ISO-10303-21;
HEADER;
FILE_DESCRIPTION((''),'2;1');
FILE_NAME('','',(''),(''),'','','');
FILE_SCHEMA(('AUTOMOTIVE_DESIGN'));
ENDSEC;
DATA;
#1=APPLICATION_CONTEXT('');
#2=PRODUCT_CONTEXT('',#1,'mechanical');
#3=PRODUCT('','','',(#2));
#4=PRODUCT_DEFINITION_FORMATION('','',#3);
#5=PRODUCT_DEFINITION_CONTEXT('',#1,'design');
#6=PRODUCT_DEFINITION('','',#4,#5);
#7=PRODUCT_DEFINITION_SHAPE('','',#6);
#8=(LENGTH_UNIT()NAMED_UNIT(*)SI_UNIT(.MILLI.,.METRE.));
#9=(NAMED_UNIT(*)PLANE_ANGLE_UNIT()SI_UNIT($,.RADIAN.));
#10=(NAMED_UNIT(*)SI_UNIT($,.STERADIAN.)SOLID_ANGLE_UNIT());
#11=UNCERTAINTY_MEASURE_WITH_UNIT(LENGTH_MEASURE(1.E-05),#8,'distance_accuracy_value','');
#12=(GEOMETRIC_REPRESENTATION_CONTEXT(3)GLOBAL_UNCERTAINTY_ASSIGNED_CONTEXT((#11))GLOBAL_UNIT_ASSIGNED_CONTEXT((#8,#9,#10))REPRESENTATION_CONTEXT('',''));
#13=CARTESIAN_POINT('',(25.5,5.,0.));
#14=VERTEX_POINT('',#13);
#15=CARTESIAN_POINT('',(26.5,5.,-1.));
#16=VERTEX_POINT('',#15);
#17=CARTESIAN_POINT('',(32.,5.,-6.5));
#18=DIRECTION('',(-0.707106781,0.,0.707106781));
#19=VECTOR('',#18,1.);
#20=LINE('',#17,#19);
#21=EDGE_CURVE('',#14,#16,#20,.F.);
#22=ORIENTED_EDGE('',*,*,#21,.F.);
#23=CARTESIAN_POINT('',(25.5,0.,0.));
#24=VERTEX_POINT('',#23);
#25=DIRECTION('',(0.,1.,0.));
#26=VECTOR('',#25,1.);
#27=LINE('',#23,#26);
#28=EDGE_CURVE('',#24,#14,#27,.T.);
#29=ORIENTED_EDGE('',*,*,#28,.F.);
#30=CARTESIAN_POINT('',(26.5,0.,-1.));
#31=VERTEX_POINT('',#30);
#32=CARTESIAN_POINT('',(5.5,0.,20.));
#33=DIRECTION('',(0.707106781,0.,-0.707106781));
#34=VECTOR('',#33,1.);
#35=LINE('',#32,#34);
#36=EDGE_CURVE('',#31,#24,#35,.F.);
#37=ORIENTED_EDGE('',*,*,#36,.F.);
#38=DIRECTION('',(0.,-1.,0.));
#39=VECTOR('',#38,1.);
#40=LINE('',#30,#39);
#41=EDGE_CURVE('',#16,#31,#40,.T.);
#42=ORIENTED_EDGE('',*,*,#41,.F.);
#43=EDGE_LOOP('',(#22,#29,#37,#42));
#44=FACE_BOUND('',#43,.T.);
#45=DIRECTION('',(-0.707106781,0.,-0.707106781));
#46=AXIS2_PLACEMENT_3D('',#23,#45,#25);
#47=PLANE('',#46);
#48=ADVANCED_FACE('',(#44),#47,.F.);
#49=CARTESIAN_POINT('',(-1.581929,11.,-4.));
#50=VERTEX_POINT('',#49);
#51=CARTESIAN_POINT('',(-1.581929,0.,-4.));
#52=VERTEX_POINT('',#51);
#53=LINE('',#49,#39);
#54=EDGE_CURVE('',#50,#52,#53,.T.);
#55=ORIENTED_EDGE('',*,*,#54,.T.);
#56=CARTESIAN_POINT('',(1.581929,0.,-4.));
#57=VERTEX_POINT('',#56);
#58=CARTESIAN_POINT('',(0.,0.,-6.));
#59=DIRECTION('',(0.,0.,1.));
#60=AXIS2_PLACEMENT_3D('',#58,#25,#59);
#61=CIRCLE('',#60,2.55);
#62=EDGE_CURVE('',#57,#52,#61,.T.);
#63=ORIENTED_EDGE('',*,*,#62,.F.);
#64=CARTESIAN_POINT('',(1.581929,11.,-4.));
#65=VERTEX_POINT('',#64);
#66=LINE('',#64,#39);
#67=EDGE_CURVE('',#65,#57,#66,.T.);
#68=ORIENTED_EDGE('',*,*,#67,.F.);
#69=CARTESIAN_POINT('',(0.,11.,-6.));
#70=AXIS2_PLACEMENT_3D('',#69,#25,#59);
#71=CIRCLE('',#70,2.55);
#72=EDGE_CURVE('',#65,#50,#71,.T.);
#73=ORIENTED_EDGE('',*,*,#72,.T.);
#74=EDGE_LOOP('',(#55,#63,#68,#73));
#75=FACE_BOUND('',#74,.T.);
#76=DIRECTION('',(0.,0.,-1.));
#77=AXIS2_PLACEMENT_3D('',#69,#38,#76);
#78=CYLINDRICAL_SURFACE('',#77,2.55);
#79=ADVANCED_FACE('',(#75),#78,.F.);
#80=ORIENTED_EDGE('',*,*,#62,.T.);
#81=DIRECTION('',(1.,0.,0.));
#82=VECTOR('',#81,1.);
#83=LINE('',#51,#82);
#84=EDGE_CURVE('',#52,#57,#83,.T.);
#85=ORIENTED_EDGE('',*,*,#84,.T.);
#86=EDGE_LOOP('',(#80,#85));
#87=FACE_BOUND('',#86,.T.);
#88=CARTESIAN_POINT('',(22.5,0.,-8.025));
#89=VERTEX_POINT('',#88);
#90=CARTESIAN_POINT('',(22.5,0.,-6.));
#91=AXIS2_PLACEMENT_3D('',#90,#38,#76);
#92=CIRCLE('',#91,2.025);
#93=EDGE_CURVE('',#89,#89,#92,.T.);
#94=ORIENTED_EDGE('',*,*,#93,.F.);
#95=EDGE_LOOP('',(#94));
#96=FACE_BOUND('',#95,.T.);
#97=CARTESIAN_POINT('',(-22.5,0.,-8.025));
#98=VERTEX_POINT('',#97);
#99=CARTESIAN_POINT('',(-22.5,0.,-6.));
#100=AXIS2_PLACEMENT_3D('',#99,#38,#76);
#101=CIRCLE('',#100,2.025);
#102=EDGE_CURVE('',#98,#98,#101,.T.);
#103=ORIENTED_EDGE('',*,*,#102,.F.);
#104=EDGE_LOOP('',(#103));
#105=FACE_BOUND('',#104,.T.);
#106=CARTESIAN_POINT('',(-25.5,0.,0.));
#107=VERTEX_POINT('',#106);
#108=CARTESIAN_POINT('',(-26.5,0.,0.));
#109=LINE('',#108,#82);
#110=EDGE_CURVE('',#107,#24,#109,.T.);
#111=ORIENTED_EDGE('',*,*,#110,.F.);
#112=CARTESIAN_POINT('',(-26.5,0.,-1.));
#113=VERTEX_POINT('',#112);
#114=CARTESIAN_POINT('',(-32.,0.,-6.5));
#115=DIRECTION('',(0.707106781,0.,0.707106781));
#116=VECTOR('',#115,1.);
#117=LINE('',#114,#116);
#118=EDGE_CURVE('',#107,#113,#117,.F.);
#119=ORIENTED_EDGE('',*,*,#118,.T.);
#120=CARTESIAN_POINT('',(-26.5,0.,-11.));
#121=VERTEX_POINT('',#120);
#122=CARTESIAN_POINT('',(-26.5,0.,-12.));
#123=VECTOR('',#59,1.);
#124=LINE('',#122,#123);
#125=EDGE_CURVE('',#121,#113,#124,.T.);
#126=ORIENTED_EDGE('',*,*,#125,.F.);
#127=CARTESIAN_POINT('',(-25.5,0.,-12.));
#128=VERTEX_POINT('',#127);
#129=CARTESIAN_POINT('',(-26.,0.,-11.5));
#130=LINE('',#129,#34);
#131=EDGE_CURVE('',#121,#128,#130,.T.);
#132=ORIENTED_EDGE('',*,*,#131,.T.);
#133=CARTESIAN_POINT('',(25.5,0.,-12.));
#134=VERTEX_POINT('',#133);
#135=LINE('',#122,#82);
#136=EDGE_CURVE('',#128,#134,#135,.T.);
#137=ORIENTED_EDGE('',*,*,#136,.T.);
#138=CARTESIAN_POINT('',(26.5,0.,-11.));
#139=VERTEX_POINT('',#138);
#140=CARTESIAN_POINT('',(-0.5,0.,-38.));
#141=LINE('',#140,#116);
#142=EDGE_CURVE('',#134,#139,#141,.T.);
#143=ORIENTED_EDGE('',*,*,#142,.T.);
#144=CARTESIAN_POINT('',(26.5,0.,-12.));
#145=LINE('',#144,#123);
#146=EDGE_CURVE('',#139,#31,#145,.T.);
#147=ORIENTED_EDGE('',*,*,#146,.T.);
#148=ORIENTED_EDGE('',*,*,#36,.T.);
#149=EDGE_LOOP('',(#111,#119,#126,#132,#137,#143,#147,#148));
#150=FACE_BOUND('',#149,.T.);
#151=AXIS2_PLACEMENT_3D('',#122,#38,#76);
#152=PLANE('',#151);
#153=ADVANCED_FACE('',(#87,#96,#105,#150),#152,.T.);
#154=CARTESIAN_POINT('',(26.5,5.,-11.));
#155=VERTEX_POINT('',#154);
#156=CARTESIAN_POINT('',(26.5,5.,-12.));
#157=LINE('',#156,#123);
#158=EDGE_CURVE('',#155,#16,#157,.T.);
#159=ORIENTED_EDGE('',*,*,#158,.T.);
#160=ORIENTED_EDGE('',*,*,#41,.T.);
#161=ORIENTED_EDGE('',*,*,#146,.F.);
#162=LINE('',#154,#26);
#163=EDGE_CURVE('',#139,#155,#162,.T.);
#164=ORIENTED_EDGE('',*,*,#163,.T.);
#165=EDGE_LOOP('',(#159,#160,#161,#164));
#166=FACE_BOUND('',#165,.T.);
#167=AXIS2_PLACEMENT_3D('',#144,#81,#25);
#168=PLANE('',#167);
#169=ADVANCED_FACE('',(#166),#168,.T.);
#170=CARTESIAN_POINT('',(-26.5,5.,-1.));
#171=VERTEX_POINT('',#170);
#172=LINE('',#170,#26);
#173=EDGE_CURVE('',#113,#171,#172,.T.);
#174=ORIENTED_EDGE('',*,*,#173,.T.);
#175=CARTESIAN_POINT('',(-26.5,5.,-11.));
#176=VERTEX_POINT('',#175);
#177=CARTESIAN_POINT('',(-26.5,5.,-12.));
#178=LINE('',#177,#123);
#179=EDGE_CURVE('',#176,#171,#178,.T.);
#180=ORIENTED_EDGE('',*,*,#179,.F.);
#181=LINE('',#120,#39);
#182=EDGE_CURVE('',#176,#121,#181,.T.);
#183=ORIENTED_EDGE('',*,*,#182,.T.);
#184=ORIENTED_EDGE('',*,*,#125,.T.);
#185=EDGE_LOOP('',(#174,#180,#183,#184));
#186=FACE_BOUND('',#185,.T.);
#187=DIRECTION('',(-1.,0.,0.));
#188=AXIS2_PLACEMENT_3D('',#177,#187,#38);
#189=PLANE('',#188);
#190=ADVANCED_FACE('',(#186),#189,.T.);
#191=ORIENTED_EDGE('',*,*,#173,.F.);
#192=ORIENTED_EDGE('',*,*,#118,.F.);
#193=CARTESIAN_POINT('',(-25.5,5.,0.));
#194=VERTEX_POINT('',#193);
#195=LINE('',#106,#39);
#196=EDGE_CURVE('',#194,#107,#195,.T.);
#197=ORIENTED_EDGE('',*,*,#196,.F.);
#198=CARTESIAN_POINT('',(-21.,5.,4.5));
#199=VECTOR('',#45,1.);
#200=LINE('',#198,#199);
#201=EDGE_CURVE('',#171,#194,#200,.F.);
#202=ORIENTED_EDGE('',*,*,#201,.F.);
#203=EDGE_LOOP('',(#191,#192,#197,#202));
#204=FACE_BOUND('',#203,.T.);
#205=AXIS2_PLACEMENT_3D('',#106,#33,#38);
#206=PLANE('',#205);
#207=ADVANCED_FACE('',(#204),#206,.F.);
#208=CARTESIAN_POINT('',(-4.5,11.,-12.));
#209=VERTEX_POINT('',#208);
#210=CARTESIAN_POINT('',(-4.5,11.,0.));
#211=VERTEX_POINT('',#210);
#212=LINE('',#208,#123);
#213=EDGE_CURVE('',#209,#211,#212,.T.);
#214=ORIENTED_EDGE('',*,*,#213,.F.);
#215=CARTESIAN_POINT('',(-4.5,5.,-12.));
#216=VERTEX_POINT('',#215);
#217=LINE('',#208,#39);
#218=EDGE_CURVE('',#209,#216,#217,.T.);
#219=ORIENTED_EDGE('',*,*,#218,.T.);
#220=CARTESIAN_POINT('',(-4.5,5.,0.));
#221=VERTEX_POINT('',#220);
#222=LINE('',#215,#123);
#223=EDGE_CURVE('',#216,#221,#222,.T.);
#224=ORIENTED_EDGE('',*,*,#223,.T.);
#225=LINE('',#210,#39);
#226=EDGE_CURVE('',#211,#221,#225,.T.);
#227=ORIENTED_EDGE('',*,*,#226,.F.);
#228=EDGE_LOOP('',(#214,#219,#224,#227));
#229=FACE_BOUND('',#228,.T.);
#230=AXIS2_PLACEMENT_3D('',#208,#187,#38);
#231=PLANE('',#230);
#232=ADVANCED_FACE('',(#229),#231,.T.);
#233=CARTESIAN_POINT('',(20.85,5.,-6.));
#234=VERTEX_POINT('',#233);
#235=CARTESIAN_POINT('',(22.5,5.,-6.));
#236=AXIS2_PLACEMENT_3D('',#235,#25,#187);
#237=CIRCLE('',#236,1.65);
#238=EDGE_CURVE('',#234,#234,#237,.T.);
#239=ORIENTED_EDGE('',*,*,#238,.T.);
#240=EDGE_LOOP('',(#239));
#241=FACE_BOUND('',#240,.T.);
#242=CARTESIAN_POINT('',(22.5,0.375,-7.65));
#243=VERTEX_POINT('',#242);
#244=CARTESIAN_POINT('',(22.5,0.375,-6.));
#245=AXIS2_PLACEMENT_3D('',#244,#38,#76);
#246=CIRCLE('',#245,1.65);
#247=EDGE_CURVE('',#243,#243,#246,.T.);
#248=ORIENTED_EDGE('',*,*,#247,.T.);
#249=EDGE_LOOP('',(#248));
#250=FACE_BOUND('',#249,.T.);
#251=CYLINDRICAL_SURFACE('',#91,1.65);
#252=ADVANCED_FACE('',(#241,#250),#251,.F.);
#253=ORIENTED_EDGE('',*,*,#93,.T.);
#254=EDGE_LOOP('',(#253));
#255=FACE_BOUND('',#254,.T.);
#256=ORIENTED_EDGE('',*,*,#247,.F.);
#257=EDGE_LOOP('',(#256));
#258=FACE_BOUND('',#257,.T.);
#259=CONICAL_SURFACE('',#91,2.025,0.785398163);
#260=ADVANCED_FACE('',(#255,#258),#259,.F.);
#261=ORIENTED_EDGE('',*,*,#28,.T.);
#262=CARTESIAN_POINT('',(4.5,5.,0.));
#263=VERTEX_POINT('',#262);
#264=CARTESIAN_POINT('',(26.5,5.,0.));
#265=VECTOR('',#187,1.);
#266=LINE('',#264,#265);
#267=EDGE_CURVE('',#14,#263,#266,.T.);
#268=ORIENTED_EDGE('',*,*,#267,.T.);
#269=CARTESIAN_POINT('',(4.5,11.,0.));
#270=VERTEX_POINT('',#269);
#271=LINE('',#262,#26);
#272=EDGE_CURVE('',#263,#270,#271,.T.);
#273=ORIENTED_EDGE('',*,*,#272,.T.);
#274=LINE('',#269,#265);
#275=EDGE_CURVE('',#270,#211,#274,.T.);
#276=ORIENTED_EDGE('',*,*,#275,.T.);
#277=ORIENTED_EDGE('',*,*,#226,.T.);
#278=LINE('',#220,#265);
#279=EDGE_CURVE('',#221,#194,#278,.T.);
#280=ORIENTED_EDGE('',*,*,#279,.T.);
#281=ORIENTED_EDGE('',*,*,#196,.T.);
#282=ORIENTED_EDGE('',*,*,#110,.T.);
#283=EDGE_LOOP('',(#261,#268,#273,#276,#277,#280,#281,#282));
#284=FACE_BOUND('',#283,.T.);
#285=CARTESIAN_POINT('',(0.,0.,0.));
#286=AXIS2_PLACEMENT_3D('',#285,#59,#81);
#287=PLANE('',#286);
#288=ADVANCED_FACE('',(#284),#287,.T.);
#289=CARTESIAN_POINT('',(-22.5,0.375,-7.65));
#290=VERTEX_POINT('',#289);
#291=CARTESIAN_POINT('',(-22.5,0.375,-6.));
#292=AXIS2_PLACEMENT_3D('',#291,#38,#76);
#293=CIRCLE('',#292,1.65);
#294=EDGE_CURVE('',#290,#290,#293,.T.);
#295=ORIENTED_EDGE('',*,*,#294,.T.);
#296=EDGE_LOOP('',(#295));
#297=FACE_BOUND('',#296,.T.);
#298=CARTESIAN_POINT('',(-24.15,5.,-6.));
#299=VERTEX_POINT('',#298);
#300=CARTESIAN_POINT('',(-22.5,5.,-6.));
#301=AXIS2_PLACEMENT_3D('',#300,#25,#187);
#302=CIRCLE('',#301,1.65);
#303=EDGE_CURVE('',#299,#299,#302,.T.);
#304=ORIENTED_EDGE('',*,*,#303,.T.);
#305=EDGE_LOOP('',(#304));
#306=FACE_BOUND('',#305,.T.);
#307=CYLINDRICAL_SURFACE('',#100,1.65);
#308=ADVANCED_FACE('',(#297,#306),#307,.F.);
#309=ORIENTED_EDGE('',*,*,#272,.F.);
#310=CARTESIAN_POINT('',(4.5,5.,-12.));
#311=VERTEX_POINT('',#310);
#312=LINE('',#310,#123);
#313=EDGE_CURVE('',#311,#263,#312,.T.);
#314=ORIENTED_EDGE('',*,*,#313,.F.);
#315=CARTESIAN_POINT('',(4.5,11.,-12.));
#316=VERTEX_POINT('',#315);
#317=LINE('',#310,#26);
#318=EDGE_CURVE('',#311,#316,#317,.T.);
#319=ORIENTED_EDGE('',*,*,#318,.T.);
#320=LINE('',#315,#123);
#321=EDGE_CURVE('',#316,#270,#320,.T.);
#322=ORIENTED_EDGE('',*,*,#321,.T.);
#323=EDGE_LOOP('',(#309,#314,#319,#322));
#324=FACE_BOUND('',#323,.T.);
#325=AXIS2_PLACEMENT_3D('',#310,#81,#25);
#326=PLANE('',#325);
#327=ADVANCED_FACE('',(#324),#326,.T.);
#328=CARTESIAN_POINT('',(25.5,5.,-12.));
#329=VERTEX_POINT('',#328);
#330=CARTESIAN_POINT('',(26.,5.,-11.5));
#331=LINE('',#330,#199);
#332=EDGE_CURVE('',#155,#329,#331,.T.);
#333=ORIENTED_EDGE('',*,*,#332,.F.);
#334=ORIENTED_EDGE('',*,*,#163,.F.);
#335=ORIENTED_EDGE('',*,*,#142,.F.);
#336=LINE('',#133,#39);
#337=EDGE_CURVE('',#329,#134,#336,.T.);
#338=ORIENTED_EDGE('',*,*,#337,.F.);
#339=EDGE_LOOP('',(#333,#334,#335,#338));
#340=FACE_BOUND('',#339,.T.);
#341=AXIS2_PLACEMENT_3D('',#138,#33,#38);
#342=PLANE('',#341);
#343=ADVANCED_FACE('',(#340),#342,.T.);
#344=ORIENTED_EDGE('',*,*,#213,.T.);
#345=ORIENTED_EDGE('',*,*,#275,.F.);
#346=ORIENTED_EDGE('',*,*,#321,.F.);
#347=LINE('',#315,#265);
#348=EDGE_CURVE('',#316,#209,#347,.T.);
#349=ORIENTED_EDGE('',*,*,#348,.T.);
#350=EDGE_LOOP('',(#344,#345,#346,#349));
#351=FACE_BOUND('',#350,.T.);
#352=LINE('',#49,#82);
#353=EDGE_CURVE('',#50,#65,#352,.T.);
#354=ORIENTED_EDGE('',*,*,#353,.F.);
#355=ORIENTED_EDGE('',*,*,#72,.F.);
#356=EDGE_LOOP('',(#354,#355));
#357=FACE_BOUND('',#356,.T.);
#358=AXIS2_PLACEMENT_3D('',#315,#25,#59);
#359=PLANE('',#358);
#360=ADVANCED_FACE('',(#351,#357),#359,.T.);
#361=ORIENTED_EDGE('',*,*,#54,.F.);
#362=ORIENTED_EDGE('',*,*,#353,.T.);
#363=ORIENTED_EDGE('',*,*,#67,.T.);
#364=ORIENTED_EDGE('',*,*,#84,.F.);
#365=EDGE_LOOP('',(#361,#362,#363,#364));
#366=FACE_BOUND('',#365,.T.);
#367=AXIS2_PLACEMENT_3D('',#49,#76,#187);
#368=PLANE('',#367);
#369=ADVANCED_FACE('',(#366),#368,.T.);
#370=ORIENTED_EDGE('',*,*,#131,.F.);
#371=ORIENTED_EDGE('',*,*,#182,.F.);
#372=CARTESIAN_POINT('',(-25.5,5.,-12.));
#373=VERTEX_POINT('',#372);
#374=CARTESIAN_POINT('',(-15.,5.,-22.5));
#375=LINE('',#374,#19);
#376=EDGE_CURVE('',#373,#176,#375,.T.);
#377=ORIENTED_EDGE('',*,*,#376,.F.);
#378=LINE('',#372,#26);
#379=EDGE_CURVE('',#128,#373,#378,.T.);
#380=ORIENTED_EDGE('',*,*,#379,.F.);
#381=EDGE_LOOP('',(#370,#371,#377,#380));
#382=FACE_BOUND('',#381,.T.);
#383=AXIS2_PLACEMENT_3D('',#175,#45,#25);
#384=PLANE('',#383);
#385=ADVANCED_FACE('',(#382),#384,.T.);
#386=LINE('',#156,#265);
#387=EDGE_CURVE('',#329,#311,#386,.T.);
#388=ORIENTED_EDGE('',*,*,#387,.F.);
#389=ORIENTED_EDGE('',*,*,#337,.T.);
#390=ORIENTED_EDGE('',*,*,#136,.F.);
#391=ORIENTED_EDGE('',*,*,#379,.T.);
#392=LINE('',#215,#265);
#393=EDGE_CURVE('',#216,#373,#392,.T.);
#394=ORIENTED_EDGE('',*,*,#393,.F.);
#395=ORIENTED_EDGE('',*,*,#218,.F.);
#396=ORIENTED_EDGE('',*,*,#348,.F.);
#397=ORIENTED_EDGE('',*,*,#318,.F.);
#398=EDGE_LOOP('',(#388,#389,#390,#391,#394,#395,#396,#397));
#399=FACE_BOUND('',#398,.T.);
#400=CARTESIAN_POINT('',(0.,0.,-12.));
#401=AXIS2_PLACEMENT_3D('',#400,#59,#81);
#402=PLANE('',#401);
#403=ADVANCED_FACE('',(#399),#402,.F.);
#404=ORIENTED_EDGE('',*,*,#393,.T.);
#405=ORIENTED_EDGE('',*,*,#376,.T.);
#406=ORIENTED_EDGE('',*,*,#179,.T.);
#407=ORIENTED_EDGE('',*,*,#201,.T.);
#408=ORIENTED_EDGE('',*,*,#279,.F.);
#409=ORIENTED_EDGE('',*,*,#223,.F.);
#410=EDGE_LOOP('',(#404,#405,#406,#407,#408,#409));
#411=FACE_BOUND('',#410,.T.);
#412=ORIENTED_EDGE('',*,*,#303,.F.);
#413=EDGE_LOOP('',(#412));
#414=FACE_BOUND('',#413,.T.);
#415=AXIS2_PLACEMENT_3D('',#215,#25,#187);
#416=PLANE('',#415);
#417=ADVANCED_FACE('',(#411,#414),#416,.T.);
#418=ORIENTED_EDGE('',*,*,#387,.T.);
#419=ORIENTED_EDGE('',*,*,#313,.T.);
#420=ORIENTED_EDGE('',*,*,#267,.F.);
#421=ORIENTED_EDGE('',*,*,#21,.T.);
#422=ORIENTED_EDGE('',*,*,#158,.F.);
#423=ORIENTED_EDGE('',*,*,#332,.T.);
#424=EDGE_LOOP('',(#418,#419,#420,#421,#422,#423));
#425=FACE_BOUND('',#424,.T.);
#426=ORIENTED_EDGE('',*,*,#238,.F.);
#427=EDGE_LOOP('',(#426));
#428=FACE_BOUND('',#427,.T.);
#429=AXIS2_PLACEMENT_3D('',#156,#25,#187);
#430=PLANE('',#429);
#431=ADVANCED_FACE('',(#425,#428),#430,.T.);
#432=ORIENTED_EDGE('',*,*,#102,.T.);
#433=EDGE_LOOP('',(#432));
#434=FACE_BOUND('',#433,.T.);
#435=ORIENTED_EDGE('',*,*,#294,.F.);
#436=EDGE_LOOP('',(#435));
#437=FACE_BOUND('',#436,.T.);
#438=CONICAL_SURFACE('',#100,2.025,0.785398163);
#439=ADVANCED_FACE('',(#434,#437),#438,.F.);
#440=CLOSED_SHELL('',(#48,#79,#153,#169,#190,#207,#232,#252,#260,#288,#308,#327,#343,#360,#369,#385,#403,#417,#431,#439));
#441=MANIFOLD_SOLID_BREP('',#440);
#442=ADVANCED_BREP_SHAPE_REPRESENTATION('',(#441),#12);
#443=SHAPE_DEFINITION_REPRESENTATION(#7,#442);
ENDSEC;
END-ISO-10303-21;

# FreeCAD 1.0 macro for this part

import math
import FreeCAD as App
import Part
import Sketcher
from FreeCAD import Vector
Q = App.Units.Quantity


def edges_at(feature, points):
    """Names of the edges that pass closest to the given points."""
    edges = feature.Shape.Edges
    near = lambda p: min(range(len(edges)), key=lambda i: edges[i].distToShape(Part.Vertex(*p))[0])
    return sorted({f"Edge{near(p) + 1}" for p in points})


def add_polygon(sketch, points):
    """Adds a closed chain of lines whose ends are joined by coincident constraints."""
    first, n = sketch.GeometryCount, len(points)
    for a, b in zip(points, points[1:] + points[:1]):
        sketch.addGeometry(Part.LineSegment(App.Vector(*a, 0), App.Vector(*b, 0)), False)
    for i in range(n):
        sketch.addConstraint(Sketcher.Constraint("Coincident", first + i, 2, first + (i + 1) % n, 1))

doc = App.newDocument("Part")
body = doc.addObject("PartDesign::Body", "Body")

# Sketch on XY plane
sketch1 = doc.addObject("Sketcher::SketchObject", "Sketch")
body.addObject(sketch1)
sketch1.AttachmentSupport = (doc.XY_Plane, [""])
sketch1.MapMode = "FlatFace"
add_polygon(sketch1, [(-26.5, 0), (26.5, 0), (26.5, 5), (4.5, 5), (4.5, 11), (-4.5, 11), (-4.5, 5), (-26.5, 5)])  # lines 0-7
sketch1.addConstraint(Sketcher.Constraint("Horizontal", 0))
sketch1.addConstraint(Sketcher.Constraint("Vertical", 1))
sketch1.addConstraint(Sketcher.Constraint("Horizontal", 2))
sketch1.addConstraint(Sketcher.Constraint("Vertical", 3))
sketch1.addConstraint(Sketcher.Constraint("Horizontal", 4))
sketch1.addConstraint(Sketcher.Constraint("Vertical", 5))
sketch1.addConstraint(Sketcher.Constraint("Horizontal", 6))
sketch1.addConstraint(Sketcher.Constraint("Vertical", 7))
sketch1.addConstraint(Sketcher.Constraint("Symmetric", 0, 2, 7, 2, -1, 1))
sketch1.addConstraint(Sketcher.Constraint("Symmetric", 2, 2, 5, 2, -2))
sketch1.addConstraint(Sketcher.Constraint("DistanceX", 0, 1, 0, 2, Q("53 mm")))
sketch1.addConstraint(Sketcher.Constraint("DistanceX", 2, 2, 2, 1, Q("22 mm")))
sketch1.addConstraint(Sketcher.Constraint("DistanceY", 1, 1, 1, 2, Q("5 mm")))
sketch1.addConstraint(Sketcher.Constraint("DistanceY", 3, 1, 3, 2, Q("6 mm")))
pad1 = doc.addObject("PartDesign::Pad", "Pad")
body.addObject(pad1)
pad1.Profile = sketch1
pad1.Length = 12
pad1.Reversed = True

# Sketch on XZ plane
sketch2 = doc.addObject("Sketcher::SketchObject", "Sketch001")
body.addObject(sketch2)
sketch2.AttachmentSupport = (doc.XZ_Plane, [""])
sketch2.MapMode = "FlatFace"
sketch2.addGeometry(Part.Circle(Vector(-22.5, -6, 0), Vector(0, 0, 1), 1.65), False)
sketch2.addGeometry(Part.Circle(Vector(22.5, -6, 0), Vector(0, 0, 1), 1.65), False)
sketch2.addConstraint(Sketcher.Constraint("Equal", 0, 1))
sketch2.addConstraint(Sketcher.Constraint("Symmetric", 0, 3, 1, 3, -2))
sketch2.addConstraint(Sketcher.Constraint("Diameter", 0, Q("3.3 mm")))
sketch2.addConstraint(Sketcher.Constraint("DistanceY", 0, 3, -1, 1, Q("6 mm")))
sketch2.addConstraint(Sketcher.Constraint("DistanceX", 0, 3, 1, 3, Q("45 mm")))
doc.recompute()
hole = doc.addObject("PartDesign::Hole", "Hole")
body.addObject(hole)
hole.Profile = sketch2
hole.ThreadType = "None"
hole.Diameter = 3.3
hole.DepthType = "ThroughAll"
hole.HoleCutType = "Countersink"
hole.HoleCutDiameter = 4.05
hole.HoleCutCountersinkAngle = 90

# Sketch on XZ plane
sketch3 = doc.addObject("Sketcher::SketchObject", "Sketch002")
body.addObject(sketch3)
sketch3.AttachmentSupport = (doc.XZ_Plane, [""])
sketch3.MapMode = "FlatFace"
sketch3.addGeometry(Part.LineSegment(Vector(-1.581929, -4, 0), Vector(1.581929, -4, 0)), False)
sketch3.addGeometry(Part.ArcOfCircle(Part.Circle(Vector(0, -6, 0), Vector(0, 0, 1), 2.55), math.radians(128.342749), math.radians(411.657251)), False)
sketch3.addConstraint(Sketcher.Constraint("Coincident", 0, 1, 1, 1))
sketch3.addConstraint(Sketcher.Constraint("Coincident", 1, 2, 0, 2))
sketch3.addConstraint(Sketcher.Constraint("Horizontal", 0))
sketch3.addConstraint(Sketcher.Constraint("PointOnObject", 1, 3, -2))
sketch3.addConstraint(Sketcher.Constraint("Radius", 1, Q("2.55 mm")))
sketch3.addConstraint(Sketcher.Constraint("DistanceY", 1, 3, -1, 1, Q("6 mm")))
sketch3.addConstraint(Sketcher.Constraint("DistanceY", 0, 1, -1, 1, Q("4 mm")))
pocket1 = doc.addObject("PartDesign::Pocket", "Pocket")
body.addObject(pocket1)
pocket1.Profile = sketch3
pocket1.Type = "ThroughAll"
doc.recompute()

chamfer = doc.addObject("PartDesign::Chamfer", "Chamfer")
body.addObject(chamfer)
chamfer.Base = (pocket1, edges_at(pocket1, [
    (26.5, 2.5, 0),
    (-26.5, 2.5, 0),
    (26.5, 2.5, -12),
    (-26.5, 2.5, -12),
]))
chamfer.Size = 1

doc.recompute()
